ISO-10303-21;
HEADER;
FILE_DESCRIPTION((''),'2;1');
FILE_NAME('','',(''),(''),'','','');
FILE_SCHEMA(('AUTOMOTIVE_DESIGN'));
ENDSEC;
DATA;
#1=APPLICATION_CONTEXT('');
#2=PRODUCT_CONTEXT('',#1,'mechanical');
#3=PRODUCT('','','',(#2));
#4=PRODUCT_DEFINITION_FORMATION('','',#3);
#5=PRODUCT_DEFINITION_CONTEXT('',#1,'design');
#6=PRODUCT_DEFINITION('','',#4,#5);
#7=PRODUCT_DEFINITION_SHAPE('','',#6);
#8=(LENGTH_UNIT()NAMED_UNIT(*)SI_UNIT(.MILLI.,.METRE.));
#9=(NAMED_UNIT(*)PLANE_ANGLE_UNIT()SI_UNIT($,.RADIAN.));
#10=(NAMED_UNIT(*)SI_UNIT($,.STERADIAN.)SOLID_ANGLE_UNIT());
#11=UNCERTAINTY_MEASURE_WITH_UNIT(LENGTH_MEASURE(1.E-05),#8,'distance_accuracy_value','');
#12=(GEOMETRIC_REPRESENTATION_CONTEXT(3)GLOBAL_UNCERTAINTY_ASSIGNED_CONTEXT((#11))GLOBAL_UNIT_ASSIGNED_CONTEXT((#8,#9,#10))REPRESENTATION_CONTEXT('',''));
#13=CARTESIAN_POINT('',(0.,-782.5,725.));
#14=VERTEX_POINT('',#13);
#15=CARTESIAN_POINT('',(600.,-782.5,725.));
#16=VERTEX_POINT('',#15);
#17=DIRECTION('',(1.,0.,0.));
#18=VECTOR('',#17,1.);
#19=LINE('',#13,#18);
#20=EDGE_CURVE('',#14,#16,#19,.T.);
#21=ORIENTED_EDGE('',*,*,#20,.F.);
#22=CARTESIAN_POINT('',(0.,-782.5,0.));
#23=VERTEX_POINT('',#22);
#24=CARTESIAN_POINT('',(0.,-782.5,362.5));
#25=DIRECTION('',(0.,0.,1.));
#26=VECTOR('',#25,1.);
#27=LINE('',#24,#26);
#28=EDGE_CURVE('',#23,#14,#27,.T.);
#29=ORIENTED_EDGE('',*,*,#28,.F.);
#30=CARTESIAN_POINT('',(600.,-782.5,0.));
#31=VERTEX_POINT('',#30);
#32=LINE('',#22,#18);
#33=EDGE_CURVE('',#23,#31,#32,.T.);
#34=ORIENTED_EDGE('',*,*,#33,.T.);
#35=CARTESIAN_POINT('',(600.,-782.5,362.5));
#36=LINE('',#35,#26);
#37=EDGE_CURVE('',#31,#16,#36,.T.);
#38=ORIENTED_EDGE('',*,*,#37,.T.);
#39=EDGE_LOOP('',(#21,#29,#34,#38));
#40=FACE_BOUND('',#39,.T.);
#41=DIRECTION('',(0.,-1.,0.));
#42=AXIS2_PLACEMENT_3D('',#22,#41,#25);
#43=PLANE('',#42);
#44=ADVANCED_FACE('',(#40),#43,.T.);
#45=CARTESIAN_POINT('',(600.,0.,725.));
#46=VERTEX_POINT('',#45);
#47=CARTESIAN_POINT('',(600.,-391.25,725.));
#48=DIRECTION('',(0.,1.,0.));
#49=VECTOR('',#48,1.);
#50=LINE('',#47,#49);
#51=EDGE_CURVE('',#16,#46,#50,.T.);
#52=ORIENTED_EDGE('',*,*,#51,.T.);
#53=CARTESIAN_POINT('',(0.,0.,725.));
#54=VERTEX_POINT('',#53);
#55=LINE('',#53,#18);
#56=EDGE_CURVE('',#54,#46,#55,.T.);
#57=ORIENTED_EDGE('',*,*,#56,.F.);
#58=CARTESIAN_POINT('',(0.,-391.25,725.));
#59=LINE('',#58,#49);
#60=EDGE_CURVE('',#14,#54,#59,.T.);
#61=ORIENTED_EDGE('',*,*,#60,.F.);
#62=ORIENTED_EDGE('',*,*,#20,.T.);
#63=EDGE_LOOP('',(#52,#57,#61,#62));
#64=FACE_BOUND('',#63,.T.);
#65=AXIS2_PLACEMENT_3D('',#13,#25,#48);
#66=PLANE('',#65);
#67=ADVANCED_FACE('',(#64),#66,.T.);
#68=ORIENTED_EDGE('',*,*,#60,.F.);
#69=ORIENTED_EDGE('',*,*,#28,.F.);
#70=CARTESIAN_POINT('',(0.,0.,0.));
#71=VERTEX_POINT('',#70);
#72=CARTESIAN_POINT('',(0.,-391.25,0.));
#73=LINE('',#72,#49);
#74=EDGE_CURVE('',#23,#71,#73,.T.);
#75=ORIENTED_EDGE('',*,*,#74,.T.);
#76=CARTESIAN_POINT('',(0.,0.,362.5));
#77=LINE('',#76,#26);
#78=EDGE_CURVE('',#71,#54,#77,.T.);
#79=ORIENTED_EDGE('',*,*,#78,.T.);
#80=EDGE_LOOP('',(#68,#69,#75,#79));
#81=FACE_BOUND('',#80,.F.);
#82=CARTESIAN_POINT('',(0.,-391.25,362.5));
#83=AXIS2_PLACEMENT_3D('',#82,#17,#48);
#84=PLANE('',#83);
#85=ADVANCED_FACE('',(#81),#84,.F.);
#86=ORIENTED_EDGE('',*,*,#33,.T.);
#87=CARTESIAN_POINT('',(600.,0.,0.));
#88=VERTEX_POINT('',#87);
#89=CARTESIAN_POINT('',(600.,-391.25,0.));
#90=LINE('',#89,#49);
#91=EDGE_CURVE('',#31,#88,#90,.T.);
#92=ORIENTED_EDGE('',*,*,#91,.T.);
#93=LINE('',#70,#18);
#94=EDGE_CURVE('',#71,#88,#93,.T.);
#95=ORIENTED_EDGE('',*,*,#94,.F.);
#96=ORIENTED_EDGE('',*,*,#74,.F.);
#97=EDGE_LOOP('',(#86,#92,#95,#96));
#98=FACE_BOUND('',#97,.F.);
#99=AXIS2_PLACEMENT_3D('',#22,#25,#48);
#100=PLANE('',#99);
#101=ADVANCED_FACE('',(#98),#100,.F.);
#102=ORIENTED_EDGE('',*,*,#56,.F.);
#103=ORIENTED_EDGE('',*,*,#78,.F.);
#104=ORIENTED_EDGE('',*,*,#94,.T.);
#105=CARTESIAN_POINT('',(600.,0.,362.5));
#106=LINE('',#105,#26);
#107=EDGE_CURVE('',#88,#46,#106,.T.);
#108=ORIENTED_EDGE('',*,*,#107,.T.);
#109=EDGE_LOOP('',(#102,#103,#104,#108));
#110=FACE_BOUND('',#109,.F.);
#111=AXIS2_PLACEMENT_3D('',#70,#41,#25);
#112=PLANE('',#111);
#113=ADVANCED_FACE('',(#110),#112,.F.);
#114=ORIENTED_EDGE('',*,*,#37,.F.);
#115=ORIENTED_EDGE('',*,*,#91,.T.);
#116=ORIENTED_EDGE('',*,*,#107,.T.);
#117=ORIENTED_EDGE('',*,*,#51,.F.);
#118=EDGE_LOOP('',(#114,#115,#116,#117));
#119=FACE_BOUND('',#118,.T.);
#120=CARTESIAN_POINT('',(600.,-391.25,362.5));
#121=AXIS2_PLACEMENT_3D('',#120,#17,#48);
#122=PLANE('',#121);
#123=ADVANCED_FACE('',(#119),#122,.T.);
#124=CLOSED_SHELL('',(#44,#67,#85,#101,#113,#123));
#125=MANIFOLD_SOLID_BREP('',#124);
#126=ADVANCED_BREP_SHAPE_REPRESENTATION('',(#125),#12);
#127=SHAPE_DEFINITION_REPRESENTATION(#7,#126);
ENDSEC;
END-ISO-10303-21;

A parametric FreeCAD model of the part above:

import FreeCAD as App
import Part
import Sketcher
from FreeCAD import Vector

doc = App.newDocument("Part")
body = doc.addObject("PartDesign::Body", "Body")

# Sketch on YZ plane
sketch1 = doc.addObject("Sketcher::SketchObject", "Sketch")
body.addObject(sketch1)
sketch1.AttachmentSupport = (doc.YZ_Plane, [""])
sketch1.MapMode = "FlatFace"
sketch1.addGeometry([
    Part.LineSegment(Vector(-782, 725, 0), Vector(-782, 0, 0)),
    Part.LineSegment(Vector(-782, 0, 0), Vector(0, 0, 0)),
    Part.LineSegment(Vector(0, 0, 0), Vector(0, 725, 0)),
    Part.LineSegment(Vector(0, 725, 0), Vector(-782, 725, 0)),
], False)
sketch1.addConstraint([
    Sketcher.Constraint("Coincident", 0, 2, 1, 1),
    Sketcher.Constraint("Coincident", 1, 2, 2, 1),
    Sketcher.Constraint("Coincident", 2, 2, 3, 1),
    Sketcher.Constraint("Coincident", 3, 2, 0, 1),
    Sketcher.Constraint("Vertical", 0),
    Sketcher.Constraint("Horizontal", 1),
    Sketcher.Constraint("Vertical", 2),
    Sketcher.Constraint("Horizontal", 3),
    Sketcher.Constraint("Coincident", 1, 2, -1, 1),
    Sketcher.Constraint("DistanceY", 0, 2, 0, 1, 725.0),
    Sketcher.Constraint("DistanceX", 1, 1, 1, 2, 782.5),
])
pad1 = doc.addObject("PartDesign::Pad", "Pad")
body.addObject(pad1)
pad1.Profile = sketch1
pad1.Length = 600

doc.recompute()
